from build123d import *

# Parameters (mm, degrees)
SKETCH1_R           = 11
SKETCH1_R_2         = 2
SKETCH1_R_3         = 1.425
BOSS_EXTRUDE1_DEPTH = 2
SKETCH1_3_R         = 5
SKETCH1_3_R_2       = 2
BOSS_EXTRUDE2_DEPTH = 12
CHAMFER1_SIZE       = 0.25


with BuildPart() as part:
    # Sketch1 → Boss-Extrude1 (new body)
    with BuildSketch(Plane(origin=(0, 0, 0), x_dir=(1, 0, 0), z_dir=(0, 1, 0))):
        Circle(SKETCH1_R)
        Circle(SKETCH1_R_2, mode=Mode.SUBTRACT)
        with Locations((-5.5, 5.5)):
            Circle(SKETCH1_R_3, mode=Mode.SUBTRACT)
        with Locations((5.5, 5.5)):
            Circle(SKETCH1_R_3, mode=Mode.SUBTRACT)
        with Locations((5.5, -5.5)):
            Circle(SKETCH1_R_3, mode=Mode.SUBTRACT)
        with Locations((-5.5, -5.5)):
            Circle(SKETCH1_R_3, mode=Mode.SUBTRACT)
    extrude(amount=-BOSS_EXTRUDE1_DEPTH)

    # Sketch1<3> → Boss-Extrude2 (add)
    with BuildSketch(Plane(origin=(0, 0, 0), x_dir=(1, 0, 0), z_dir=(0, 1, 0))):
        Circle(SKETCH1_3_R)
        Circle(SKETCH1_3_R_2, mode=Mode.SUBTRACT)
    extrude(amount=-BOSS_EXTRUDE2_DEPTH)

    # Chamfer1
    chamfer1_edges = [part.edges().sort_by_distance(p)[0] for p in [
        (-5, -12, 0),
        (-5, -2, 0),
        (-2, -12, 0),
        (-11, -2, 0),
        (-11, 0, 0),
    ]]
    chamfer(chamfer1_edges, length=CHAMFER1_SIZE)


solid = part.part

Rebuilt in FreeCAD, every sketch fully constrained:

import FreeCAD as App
import Part
import Sketcher

V = App.Vector


def edges_at(feature, points):
    """Names of the edges that pass closest to the given points."""
    edges = feature.Shape.Edges
    near = lambda p: min(range(len(edges)), key=lambda i: edges[i].distToShape(Part.Vertex(*p))[0])
    return sorted({f"Edge{near(p) + 1}" for p in points})

doc = App.newDocument("Part")
body = doc.addObject("PartDesign::Body", "Body")

sketch1 = doc.addObject("Sketcher::SketchObject", "Sketch")
body.addObject(sketch1)
sketch1.AttachmentSupport = (doc.XZ_Plane, [""])
sketch1.MapMode = "FlatFace"
sketch1.addGeometry([
    Part.Circle(V(0, 0, 0), V(0, 0, 1), 11),
    Part.Circle(V(-5.5, 5.5, 0), V(0, 0, 1), 1.4),
    Part.Circle(V(5.5, 5.5, 0), V(0, 0, 1), 1.4),
    Part.Circle(V(0, 0, 0), V(0, 0, 1), 2),
    Part.Circle(V(-5.5, -5.5, 0), V(0, 0, 1), 1.4),
    Part.Circle(V(5.5, -5.5, 0), V(0, 0, 1), 1.4),
], False)
sketch1.addConstraint([
    Sketcher.Constraint("Coincident", 0, 3, -1, 1),
    Sketcher.Constraint("Coincident", 3, 3, -1, 1),
    Sketcher.Constraint("Equal", 1, 2),
    Sketcher.Constraint("Equal", 2, 4),
    Sketcher.Constraint("Equal", 4, 5),
    Sketcher.Constraint("Symmetric", 2, 3, 4, 3, -1, 1),
    Sketcher.Constraint("Symmetric", 1, 3, 5, 3, -1, 1),
    Sketcher.Constraint("Symmetric", 1, 3, 2, 3, -2),
    Sketcher.Constraint("Diameter", 0, 22.0),
    Sketcher.Constraint("Diameter", 3, 4.0),
    Sketcher.Constraint("Diameter", 1, 2.85),
    Sketcher.Constraint("DistanceX", 1, 3, 2, 3, 11.0),
    Sketcher.Constraint("DistanceY", 4, 3, 1, 3, 11.0),
])
pad1 = doc.addObject("PartDesign::Pad", "Pad")
body.addObject(pad1)
pad1.Profile = sketch1
pad1.Length = 2

sketch2 = doc.addObject("Sketcher::SketchObject", "Sketch001")
body.addObject(sketch2)
sketch2.AttachmentSupport = (doc.XZ_Plane, [""])
sketch2.MapMode = "FlatFace"
sketch2.addGeometry([
    Part.Circle(V(0, 0, 0), V(0, 0, 1), 5),
    Part.Circle(V(0, 0, 0), V(0, 0, 1), 2),
], False)
sketch2.addConstraint([
    Sketcher.Constraint("Coincident", 0, 3, -1, 1),
    Sketcher.Constraint("Coincident", 1, 3, -1, 1),
    Sketcher.Constraint("Diameter", 0, 10.0),
    Sketcher.Constraint("Diameter", 1, 4.0),
])
pad2 = doc.addObject("PartDesign::Pad", "Pad001")
body.addObject(pad2)
pad2.Profile = sketch2
pad2.Length = 12
doc.recompute()

chamfer = doc.addObject("PartDesign::Chamfer", "Chamfer")
body.addObject(chamfer)
chamfer.Base = (pad2, edges_at(pad2, [
    (-5, -12, 0),
    (-5, -2, 0),
    (-2, -12, 0),
    (-11, -2, 0),
    (-11, 0, 0),
]))
chamfer.Size = 0.25

doc.recompute()
